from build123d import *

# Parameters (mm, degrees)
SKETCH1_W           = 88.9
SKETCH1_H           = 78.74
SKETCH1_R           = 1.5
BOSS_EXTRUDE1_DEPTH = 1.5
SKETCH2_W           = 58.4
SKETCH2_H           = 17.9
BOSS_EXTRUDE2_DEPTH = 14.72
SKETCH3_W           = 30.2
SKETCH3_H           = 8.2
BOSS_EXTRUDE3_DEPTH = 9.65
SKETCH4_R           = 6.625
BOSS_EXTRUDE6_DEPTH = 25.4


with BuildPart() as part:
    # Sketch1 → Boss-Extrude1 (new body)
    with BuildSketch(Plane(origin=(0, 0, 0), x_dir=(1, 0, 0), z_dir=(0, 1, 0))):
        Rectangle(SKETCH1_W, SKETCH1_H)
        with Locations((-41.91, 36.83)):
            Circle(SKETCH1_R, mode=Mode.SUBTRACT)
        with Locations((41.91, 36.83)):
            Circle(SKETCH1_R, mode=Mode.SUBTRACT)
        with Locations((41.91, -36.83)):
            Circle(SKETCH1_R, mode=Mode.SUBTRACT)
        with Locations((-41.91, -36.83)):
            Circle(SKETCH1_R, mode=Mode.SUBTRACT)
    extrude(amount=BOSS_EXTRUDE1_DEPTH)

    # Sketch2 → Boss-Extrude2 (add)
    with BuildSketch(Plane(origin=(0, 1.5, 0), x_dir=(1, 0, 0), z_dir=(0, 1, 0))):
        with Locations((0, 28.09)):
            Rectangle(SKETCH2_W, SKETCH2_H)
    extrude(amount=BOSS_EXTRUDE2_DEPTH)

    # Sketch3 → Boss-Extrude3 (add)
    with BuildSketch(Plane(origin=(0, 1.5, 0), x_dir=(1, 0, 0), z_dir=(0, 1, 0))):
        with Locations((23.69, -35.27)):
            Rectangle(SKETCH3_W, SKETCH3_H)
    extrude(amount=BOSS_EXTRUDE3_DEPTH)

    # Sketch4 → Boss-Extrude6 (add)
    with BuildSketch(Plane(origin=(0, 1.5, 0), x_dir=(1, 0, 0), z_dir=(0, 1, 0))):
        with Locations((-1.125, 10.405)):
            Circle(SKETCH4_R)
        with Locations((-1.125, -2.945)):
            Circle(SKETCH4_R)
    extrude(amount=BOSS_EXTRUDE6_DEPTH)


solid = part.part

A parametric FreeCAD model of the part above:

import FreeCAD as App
import Part
import Sketcher

V = App.Vector
Q = App.Units.Quantity


def add_polygon(sketch, points):
    """Adds a closed chain of lines whose ends are joined by coincident constraints."""
    first, n = sketch.GeometryCount, len(points)
    for a, b in zip(points, points[1:] + points[:1]):
        sketch.addGeometry(Part.LineSegment(App.Vector(*a, 0), App.Vector(*b, 0)), False)
    for i in range(n):
        sketch.addConstraint(Sketcher.Constraint("Coincident", first + i, 2, first + (i + 1) % n, 1))

doc = App.newDocument("Part")
body = doc.addObject("PartDesign::Body", "Body")

sketch1 = body.newObject("Sketcher::SketchObject", "Sketch")
sketch1.AttachmentSupport = (doc.getObject("XZ_Plane"), [""])
sketch1.MapMode = "FlatFace"
add_polygon(sketch1, [(-44.5, -39.4), (-44.5, 39.4), (44.5, 39.4), (44.5, -39.4)])
sketch1.addGeometry(Part.Circle(V(-41.9, 36.8, 0), V(0, 0, 1), 1.5), False)
sketch1.addGeometry(Part.Circle(V(41.9, 36.8, 0), V(0, 0, 1), 1.5), False)
sketch1.addGeometry(Part.Circle(V(-41.9, -36.8, 0), V(0, 0, 1), 1.5), False)
sketch1.addGeometry(Part.Circle(V(41.9, -36.8, 0), V(0, 0, 1), 1.5), False)
sketch1.addConstraint(Sketcher.Constraint("Vertical", 0))
sketch1.addConstraint(Sketcher.Constraint("Horizontal", 1))
sketch1.addConstraint(Sketcher.Constraint("Vertical", 2))
sketch1.addConstraint(Sketcher.Constraint("Horizontal", 3))
sketch1.addConstraint(Sketcher.Constraint("Equal", 4, 5))
sketch1.addConstraint(Sketcher.Constraint("Equal", 5, 6))
sketch1.addConstraint(Sketcher.Constraint("Equal", 6, 7))
sketch1.addConstraint(Sketcher.Constraint("Symmetric", 5, 3, 6, 3, -1, 1))
sketch1.addConstraint(Sketcher.Constraint("Symmetric", 4, 3, 7, 3, -1, 1))
sketch1.addConstraint(Sketcher.Constraint("Symmetric", 0, 2, 2, 2, -1, 1))
sketch1.addConstraint(Sketcher.Constraint("Symmetric", 4, 3, 5, 3, -2))
sketch1.addConstraint(Sketcher.Constraint("Diameter", 4, Q("3 mm")))
sketch1.addConstraint(Sketcher.Constraint("DistanceX", 1, 1, 1, 2, Q("88.9 mm")))
sketch1.addConstraint(Sketcher.Constraint("DistanceY", 0, 1, 0, 2, Q("78.74 mm")))
sketch1.addConstraint(Sketcher.Constraint("DistanceY", 6, 3, 0, 2, Q("76.2 mm")))
sketch1.addConstraint(Sketcher.Constraint("DistanceX", 4, 3, -1, 1, Q("41.91 mm")))
pad1 = body.newObject("PartDesign::Pad", "Pad")
pad1.Profile = sketch1
pad1.Length = 1.5
pad1.Reversed = True

sketch2 = body.newObject("Sketcher::SketchObject", "Sketch001")
sketch2.AttachmentSupport = (doc.getObject("XZ_Plane"), [""])
sketch2.MapMode = "FlatFace"
sketch2.AttachmentOffset = App.Placement(V(0, 0, -1.5), App.Rotation())
add_polygon(sketch2, [(-29, -37), (-29, -19), (29, -19), (29, -37)])
sketch2.addConstraint(Sketcher.Constraint("Vertical", 0))
sketch2.addConstraint(Sketcher.Constraint("Horizontal", 1))
sketch2.addConstraint(Sketcher.Constraint("Vertical", 2))
sketch2.addConstraint(Sketcher.Constraint("Horizontal", 3))
sketch2.addConstraint(Sketcher.Constraint("DistanceX", 1, 1, 1, 2, Q("58.4 mm")))
sketch2.addConstraint(Sketcher.Constraint("DistanceY", 0, 1, 0, 2, Q("17.9 mm")))
sketch2.addConstraint(Sketcher.Constraint("DistanceX", 0, 2, -1, 1, Q("29.2 mm")))
sketch2.addConstraint(Sketcher.Constraint("DistanceY", 0, 2, -1, 1, Q("19.14 mm")))
pad2 = body.newObject("PartDesign::Pad", "Pad001")
pad2.Profile = sketch2
pad2.Length = 14.72
pad2.Reversed = True

sketch3 = body.newObject("Sketcher::SketchObject", "Sketch002")
sketch3.AttachmentSupport = (doc.getObject("XZ_Plane"), [""])
sketch3.MapMode = "FlatFace"
sketch3.AttachmentOffset = App.Placement(V(0, 0, -1.5), App.Rotation())
add_polygon(sketch3, [(9, 31), (9, 39), (39, 39), (39, 31)])
sketch3.addConstraint(Sketcher.Constraint("Vertical", 0))
sketch3.addConstraint(Sketcher.Constraint("Horizontal", 1))
sketch3.addConstraint(Sketcher.Constraint("Vertical", 2))
sketch3.addConstraint(Sketcher.Constraint("Horizontal", 3))
sketch3.addConstraint(Sketcher.Constraint("DistanceX", 1, 1, 1, 2, Q("30.2 mm")))
sketch3.addConstraint(Sketcher.Constraint("DistanceY", 0, 1, 0, 2, Q("8.2 mm")))
sketch3.addConstraint(Sketcher.Constraint("DistanceX", -1, 1, 0, 2, Q("8.59 mm")))
sketch3.addConstraint(Sketcher.Constraint("DistanceY", -1, 1, 0, 2, Q("39.37 mm")))
pad3 = body.newObject("PartDesign::Pad", "Pad002")
pad3.Profile = sketch3
pad3.Length = 9.65
pad3.Reversed = True

sketch4 = body.newObject("Sketcher::SketchObject", "Sketch003")
sketch4.AttachmentSupport = (doc.getObject("XZ_Plane"), [""])
sketch4.MapMode = "FlatFace"
sketch4.AttachmentOffset = App.Placement(V(0, 0, -1.5), App.Rotation())
sketch4.addGeometry(Part.Circle(V(-1, -10, 0), V(0, 0, 1), 7), False)
sketch4.addGeometry(Part.Circle(V(-1, 3, 0), V(0, 0, 1), 7), False)
sketch4.addConstraint(Sketcher.Constraint("Equal", 0, 1))
sketch4.addConstraint(Sketcher.Constraint("Vertical", 0, 3, 1, 3))
sketch4.addConstraint(Sketcher.Constraint("Diameter", 0, Q("13.25 mm")))
sketch4.addConstraint(Sketcher.Constraint("DistanceY", 0, 3, 1, 3, Q("13.35 mm")))
sketch4.addConstraint(Sketcher.Constraint("DistanceX", 0, 3, -1, 1, Q("1.125 mm")))
sketch4.addConstraint(Sketcher.Constraint("DistanceY", 0, 3, -1, 1, Q("10.405 mm")))
pad4 = body.newObject("PartDesign::Pad", "Pad003")
pad4.Profile = sketch4
pad4.Length = 25.4
pad4.Reversed = True

doc.recompute()
